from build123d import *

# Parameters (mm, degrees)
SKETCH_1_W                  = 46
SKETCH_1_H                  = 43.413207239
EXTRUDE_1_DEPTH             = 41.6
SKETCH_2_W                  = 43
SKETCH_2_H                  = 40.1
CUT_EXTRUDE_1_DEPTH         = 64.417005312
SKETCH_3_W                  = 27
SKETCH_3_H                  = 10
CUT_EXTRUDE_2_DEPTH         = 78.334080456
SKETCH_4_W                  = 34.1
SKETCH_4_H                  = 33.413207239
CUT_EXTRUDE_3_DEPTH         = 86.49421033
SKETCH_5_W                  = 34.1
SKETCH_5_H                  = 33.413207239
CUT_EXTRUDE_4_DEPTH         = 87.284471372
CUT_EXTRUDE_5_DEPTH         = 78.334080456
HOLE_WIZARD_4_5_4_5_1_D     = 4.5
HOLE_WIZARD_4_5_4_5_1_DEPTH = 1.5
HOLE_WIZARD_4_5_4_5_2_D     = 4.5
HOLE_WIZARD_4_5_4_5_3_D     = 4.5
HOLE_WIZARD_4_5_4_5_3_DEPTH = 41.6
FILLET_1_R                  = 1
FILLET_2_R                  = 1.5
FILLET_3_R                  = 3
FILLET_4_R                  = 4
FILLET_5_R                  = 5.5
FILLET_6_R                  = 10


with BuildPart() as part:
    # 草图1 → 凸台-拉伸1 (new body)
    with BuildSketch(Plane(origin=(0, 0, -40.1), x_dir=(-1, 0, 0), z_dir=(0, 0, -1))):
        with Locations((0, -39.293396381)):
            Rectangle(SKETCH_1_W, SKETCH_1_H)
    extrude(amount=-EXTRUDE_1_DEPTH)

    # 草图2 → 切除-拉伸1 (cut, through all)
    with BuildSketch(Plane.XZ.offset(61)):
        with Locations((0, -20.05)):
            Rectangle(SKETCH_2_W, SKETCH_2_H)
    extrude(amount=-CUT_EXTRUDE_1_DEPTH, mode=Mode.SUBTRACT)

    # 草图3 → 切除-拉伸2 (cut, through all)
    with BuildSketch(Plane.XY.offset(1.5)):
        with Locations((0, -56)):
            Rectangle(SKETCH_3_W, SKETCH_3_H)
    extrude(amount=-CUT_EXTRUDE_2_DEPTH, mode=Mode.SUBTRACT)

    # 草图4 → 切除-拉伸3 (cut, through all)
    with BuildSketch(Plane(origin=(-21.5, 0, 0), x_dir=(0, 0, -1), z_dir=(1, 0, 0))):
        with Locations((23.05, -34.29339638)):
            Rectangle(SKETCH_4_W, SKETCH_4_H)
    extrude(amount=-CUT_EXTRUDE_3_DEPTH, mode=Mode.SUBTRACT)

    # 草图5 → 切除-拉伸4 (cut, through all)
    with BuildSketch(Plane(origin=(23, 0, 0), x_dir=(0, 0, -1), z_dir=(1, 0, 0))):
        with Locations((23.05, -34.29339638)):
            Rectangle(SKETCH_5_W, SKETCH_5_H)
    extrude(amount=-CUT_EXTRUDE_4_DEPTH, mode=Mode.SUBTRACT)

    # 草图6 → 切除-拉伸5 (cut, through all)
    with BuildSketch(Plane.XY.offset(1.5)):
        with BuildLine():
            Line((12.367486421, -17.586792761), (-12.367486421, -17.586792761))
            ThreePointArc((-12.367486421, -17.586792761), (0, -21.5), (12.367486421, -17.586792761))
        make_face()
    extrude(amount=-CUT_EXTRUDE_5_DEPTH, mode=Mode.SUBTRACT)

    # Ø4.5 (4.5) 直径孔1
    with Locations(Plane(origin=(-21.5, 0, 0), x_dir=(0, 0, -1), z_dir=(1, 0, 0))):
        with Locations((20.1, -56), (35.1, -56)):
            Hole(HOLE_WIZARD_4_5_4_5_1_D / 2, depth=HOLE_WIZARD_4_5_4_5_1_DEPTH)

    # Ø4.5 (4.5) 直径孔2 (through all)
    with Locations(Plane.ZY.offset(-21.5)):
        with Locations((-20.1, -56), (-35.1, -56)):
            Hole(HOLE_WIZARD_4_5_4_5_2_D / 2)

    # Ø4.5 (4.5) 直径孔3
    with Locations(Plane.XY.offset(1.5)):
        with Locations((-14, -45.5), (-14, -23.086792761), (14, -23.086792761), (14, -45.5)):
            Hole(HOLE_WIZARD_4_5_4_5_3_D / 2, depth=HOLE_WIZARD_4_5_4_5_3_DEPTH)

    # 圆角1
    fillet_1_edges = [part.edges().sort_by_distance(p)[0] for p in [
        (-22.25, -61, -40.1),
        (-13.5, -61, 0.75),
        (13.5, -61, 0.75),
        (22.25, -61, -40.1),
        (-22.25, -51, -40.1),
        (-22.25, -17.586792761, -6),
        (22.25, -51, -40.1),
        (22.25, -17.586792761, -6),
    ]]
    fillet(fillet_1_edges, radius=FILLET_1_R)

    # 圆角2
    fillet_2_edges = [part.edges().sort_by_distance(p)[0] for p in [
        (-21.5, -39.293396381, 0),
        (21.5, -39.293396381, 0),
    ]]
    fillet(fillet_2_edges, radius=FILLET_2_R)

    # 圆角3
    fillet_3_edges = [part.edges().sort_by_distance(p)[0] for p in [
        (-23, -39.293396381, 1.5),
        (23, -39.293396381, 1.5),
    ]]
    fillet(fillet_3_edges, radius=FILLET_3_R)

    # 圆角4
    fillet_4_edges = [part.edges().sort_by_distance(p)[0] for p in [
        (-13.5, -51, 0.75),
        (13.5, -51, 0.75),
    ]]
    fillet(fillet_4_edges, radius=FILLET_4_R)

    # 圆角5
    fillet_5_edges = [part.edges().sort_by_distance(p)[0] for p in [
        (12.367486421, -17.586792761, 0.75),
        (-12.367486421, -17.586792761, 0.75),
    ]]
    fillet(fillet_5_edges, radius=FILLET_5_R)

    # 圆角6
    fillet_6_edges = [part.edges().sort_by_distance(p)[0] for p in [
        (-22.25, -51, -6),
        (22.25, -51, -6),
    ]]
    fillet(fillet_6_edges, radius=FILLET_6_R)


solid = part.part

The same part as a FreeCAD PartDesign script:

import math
import FreeCAD as App
import Part
import Sketcher


def edges_at(feature, points):
    """Names of the edges that pass closest to the given points."""
    edges = feature.Shape.Edges
    near = lambda p: min(range(len(edges)), key=lambda i: edges[i].distToShape(Part.Vertex(*p))[0])
    return sorted({f"Edge{near(p) + 1}" for p in points})

doc = App.newDocument("Part")
body = doc.addObject("PartDesign::Body", "Body")

sketch1 = body.newObject("Sketcher::SketchObject", "Sketch")
sketch1.AttachmentSupport = (doc.getObject("XY_Plane"), [""])
sketch1.MapMode = "FlatFace"
sketch1.AttachmentOffset = App.Placement(App.Vector(0, 0, -40.1), App.Rotation())
sketch1.addGeometry(Part.LineSegment(App.Vector(23, -17.586793, 0), App.Vector(23, -61, 0)), False)
sketch1.addGeometry(Part.LineSegment(App.Vector(23, -61, 0), App.Vector(-23, -61, 0)), False)
sketch1.addGeometry(Part.LineSegment(App.Vector(-23, -61, 0), App.Vector(-23, -17.586793, 0)), False)
sketch1.addGeometry(Part.LineSegment(App.Vector(-23, -17.586793, 0), App.Vector(23, -17.586793, 0)), False)
sketch1.addConstraint(Sketcher.Constraint("Coincident", 0, 2, 1, 1))
sketch1.addConstraint(Sketcher.Constraint("Coincident", 1, 2, 2, 1))
sketch1.addConstraint(Sketcher.Constraint("Coincident", 2, 2, 3, 1))
sketch1.addConstraint(Sketcher.Constraint("Coincident", 3, 2, 0, 1))
sketch1.addConstraint(Sketcher.Constraint("Vertical", 0))
sketch1.addConstraint(Sketcher.Constraint("Horizontal", 1))
sketch1.addConstraint(Sketcher.Constraint("Vertical", 2))
sketch1.addConstraint(Sketcher.Constraint("Horizontal", 3))
sketch1.addConstraint(Sketcher.Constraint("DistanceX", 1, 2, 1, 1, 46.0))
sketch1.addConstraint(Sketcher.Constraint("DistanceX", -1, 1, 0, 2, 23.0))
sketch1.addConstraint(Sketcher.Constraint("DistanceY", 0, 2, -1, 1, 61.0))
sketch1.addConstraint(Sketcher.Constraint("DistanceY", 0, 2, 0, 1, 43.413207))
pad1 = body.newObject("PartDesign::Pad", "Pad")
pad1.Profile = sketch1
pad1.Length = 41.6

sketch2 = body.newObject("Sketcher::SketchObject", "Sketch001")
sketch2.AttachmentSupport = (doc.getObject("XZ_Plane"), [""])
sketch2.MapMode = "FlatFace"
sketch2.AttachmentOffset = App.Placement(App.Vector(0, 0, 61), App.Rotation())
sketch2.addGeometry(Part.LineSegment(App.Vector(-21.5, 0, 0), App.Vector(-21.5, -40.1, 0)), False)
sketch2.addGeometry(Part.LineSegment(App.Vector(-21.5, -40.1, 0), App.Vector(21.5, -40.1, 0)), False)
sketch2.addGeometry(Part.LineSegment(App.Vector(21.5, -40.1, 0), App.Vector(21.5, 0, 0)), False)
sketch2.addGeometry(Part.LineSegment(App.Vector(21.5, 0, 0), App.Vector(-21.5, 0, 0)), False)
sketch2.addConstraint(Sketcher.Constraint("Coincident", 0, 2, 1, 1))
sketch2.addConstraint(Sketcher.Constraint("Coincident", 1, 2, 2, 1))
sketch2.addConstraint(Sketcher.Constraint("Coincident", 2, 2, 3, 1))
sketch2.addConstraint(Sketcher.Constraint("Coincident", 3, 2, 0, 1))
sketch2.addConstraint(Sketcher.Constraint("Vertical", 0))
sketch2.addConstraint(Sketcher.Constraint("Horizontal", 1))
sketch2.addConstraint(Sketcher.Constraint("Vertical", 2))
sketch2.addConstraint(Sketcher.Constraint("Horizontal", 3))
sketch2.addConstraint(Sketcher.Constraint("Symmetric", 2, 2, 3, 2, -1, 1))
sketch2.addConstraint(Sketcher.Constraint("DistanceX", 1, 1, 1, 2, 43.0))
sketch2.addConstraint(Sketcher.Constraint("DistanceY", 0, 2, 0, 1, 40.1))
pocket1 = body.newObject("PartDesign::Pocket", "Pocket")
pocket1.Profile = sketch2
pocket1.Type = "ThroughAll"

sketch3 = body.newObject("Sketcher::SketchObject", "Sketch002")
sketch3.AttachmentSupport = (doc.getObject("XY_Plane"), [""])
sketch3.MapMode = "FlatFace"
sketch3.AttachmentOffset = App.Placement(App.Vector(0, 0, 1.5), App.Rotation())
sketch3.addGeometry(Part.LineSegment(App.Vector(-13.5, -51, 0), App.Vector(-13.5, -61, 0)), False)
sketch3.addGeometry(Part.LineSegment(App.Vector(-13.5, -61, 0), App.Vector(13.5, -61, 0)), False)
sketch3.addGeometry(Part.LineSegment(App.Vector(13.5, -61, 0), App.Vector(13.5, -51, 0)), False)
sketch3.addGeometry(Part.LineSegment(App.Vector(13.5, -51, 0), App.Vector(-13.5, -51, 0)), False)
sketch3.addConstraint(Sketcher.Constraint("Coincident", 0, 2, 1, 1))
sketch3.addConstraint(Sketcher.Constraint("Coincident", 1, 2, 2, 1))
sketch3.addConstraint(Sketcher.Constraint("Coincident", 2, 2, 3, 1))
sketch3.addConstraint(Sketcher.Constraint("Coincident", 3, 2, 0, 1))
sketch3.addConstraint(Sketcher.Constraint("Vertical", 0))
sketch3.addConstraint(Sketcher.Constraint("Horizontal", 1))
sketch3.addConstraint(Sketcher.Constraint("Vertical", 2))
sketch3.addConstraint(Sketcher.Constraint("Horizontal", 3))
sketch3.addConstraint(Sketcher.Constraint("DistanceX", 1, 1, 1, 2, 27.0))
sketch3.addConstraint(Sketcher.Constraint("DistanceY", 0, 2, 0, 1, 10.0))
sketch3.addConstraint(Sketcher.Constraint("DistanceY", 0, 2, -1, 1, 61.0))
sketch3.addConstraint(Sketcher.Constraint("DistanceX", 0, 2, -1, 1, 13.5))
pocket2 = body.newObject("PartDesign::Pocket", "Pocket001")
pocket2.Profile = sketch3
pocket2.Type = "ThroughAll"

sketch4 = body.newObject("Sketcher::SketchObject", "Sketch003")
sketch4.AttachmentSupport = (doc.getObject("YZ_Plane"), [""])
sketch4.MapMode = "FlatFace"
sketch4.AttachmentOffset = App.Placement(App.Vector(0, 0, -21.5), App.Rotation())
sketch4.addGeometry(Part.LineSegment(App.Vector(-17.586793, -6, 0), App.Vector(-51, -6, 0)), False)
sketch4.addGeometry(Part.LineSegment(App.Vector(-51, -6, 0), App.Vector(-51, -40.1, 0)), False)
sketch4.addGeometry(Part.LineSegment(App.Vector(-51, -40.1, 0), App.Vector(-17.586793, -40.1, 0)), False)
sketch4.addGeometry(Part.LineSegment(App.Vector(-17.586793, -40.1, 0), App.Vector(-17.586793, -6, 0)), False)
sketch4.addConstraint(Sketcher.Constraint("Coincident", 0, 2, 1, 1))
sketch4.addConstraint(Sketcher.Constraint("Coincident", 1, 2, 2, 1))
sketch4.addConstraint(Sketcher.Constraint("Coincident", 2, 2, 3, 1))
sketch4.addConstraint(Sketcher.Constraint("Coincident", 3, 2, 0, 1))
sketch4.addConstraint(Sketcher.Constraint("Horizontal", 0))
sketch4.addConstraint(Sketcher.Constraint("Vertical", 1))
sketch4.addConstraint(Sketcher.Constraint("Horizontal", 2))
sketch4.addConstraint(Sketcher.Constraint("Vertical", 3))
sketch4.addConstraint(Sketcher.Constraint("DistanceY", 1, 2, 1, 1, 34.1))
sketch4.addConstraint(Sketcher.Constraint("DistanceX", 0, 2, -1, 1, 51.0))
sketch4.addConstraint(Sketcher.Constraint("DistanceY", 0, 2, -1, 1, 6.0))
sketch4.addConstraint(Sketcher.Constraint("DistanceX", 0, 2, 0, 1, 33.413207))
pocket3 = body.newObject("PartDesign::Pocket", "Pocket002")
pocket3.Profile = sketch4
pocket3.Type = "ThroughAll"

sketch5 = body.newObject("Sketcher::SketchObject", "Sketch004")
sketch5.AttachmentSupport = (doc.getObject("YZ_Plane"), [""])
sketch5.MapMode = "FlatFace"
sketch5.AttachmentOffset = App.Placement(App.Vector(0, 0, 23), App.Rotation())
sketch5.addGeometry(Part.LineSegment(App.Vector(-17.586793, -6, 0), App.Vector(-51, -6, 0)), False)
sketch5.addGeometry(Part.LineSegment(App.Vector(-51, -6, 0), App.Vector(-51, -40.1, 0)), False)
sketch5.addGeometry(Part.LineSegment(App.Vector(-51, -40.1, 0), App.Vector(-17.586793, -40.1, 0)), False)
sketch5.addGeometry(Part.LineSegment(App.Vector(-17.586793, -40.1, 0), App.Vector(-17.586793, -6, 0)), False)
sketch5.addConstraint(Sketcher.Constraint("Coincident", 0, 2, 1, 1))
sketch5.addConstraint(Sketcher.Constraint("Coincident", 1, 2, 2, 1))
sketch5.addConstraint(Sketcher.Constraint("Coincident", 2, 2, 3, 1))
sketch5.addConstraint(Sketcher.Constraint("Coincident", 3, 2, 0, 1))
sketch5.addConstraint(Sketcher.Constraint("Horizontal", 0))
sketch5.addConstraint(Sketcher.Constraint("Vertical", 1))
sketch5.addConstraint(Sketcher.Constraint("Horizontal", 2))
sketch5.addConstraint(Sketcher.Constraint("Vertical", 3))
sketch5.addConstraint(Sketcher.Constraint("DistanceY", 1, 2, 1, 1, 34.1))
sketch5.addConstraint(Sketcher.Constraint("DistanceX", 0, 2, -1, 1, 51.0))
sketch5.addConstraint(Sketcher.Constraint("DistanceY", 0, 2, -1, 1, 6.0))
sketch5.addConstraint(Sketcher.Constraint("DistanceX", 0, 2, 0, 1, 33.413207))
pocket4 = body.newObject("PartDesign::Pocket", "Pocket003")
pocket4.Profile = sketch5
pocket4.Type = "ThroughAll"

sketch6 = body.newObject("Sketcher::SketchObject", "Sketch005")
sketch6.AttachmentSupport = (doc.getObject("XY_Plane"), [""])
sketch6.MapMode = "FlatFace"
sketch6.AttachmentOffset = App.Placement(App.Vector(0, 0, 1.5), App.Rotation())
sketch6.addGeometry(Part.LineSegment(App.Vector(12.367486, -17.586793, 0), App.Vector(-12.367486, -17.586793, 0)), False)
sketch6.addGeometry(Part.ArcOfCircle(Part.Circle(App.Vector(0, 0, 0), App.Vector(0, 0, 1), 21.5), math.radians(-125.115876), math.radians(-54.884124)), False)
sketch6.addConstraint(Sketcher.Constraint("Coincident", 0, 1, 1, 2))
sketch6.addConstraint(Sketcher.Constraint("Coincident", 1, 1, 0, 2))
sketch6.addConstraint(Sketcher.Constraint("Horizontal", 0))
sketch6.addConstraint(Sketcher.Constraint("Coincident", 1, 3, -1, 1))
sketch6.addConstraint(Sketcher.Constraint("Radius", 1, 21.5))
sketch6.addConstraint(Sketcher.Constraint("DistanceX", 0, 2, 0, 1, 24.734973))
pocket5 = body.newObject("PartDesign::Pocket", "Pocket004")
pocket5.Profile = sketch6
pocket5.Type = "ThroughAll"

sketch7 = body.newObject("Sketcher::SketchObject", "Sketch006")
sketch7.AttachmentSupport = (doc.getObject("YZ_Plane"), [""])
sketch7.MapMode = "FlatFace"
sketch7.AttachmentOffset = App.Placement(App.Vector(0, 0, -21.5), App.Rotation())
sketch7.addGeometry(Part.Circle(App.Vector(-56, -20.1, 0), App.Vector(0, 0, 1), 2.25), False)
sketch7.addGeometry(Part.Circle(App.Vector(-56, -35.1, 0), App.Vector(0, 0, 1), 2.25), False)
sketch7.addConstraint(Sketcher.Constraint("Equal", 0, 1))
sketch7.addConstraint(Sketcher.Constraint("Vertical", 0, 3, 1, 3))
sketch7.addConstraint(Sketcher.Constraint("Diameter", 0, 4.5))
sketch7.addConstraint(Sketcher.Constraint("DistanceX", 0, 3, -1, 1, 56.0))
sketch7.addConstraint(Sketcher.Constraint("DistanceY", 1, 3, 0, 3, 15.0))
sketch7.addConstraint(Sketcher.Constraint("DistanceY", 0, 3, -1, 1, 20.1))
doc.recompute()
hole = body.newObject("PartDesign::Hole", "Hole")
hole.Profile = sketch7
hole.ThreadType = "None"
hole.Diameter = 4.5
hole.DepthType = "Dimension"
hole.Depth = 1.5
hole.DrillPoint = "Flat"

sketch8 = body.newObject("Sketcher::SketchObject", "Sketch007")
sketch8.AttachmentSupport = (doc.getObject("YZ_Plane"), [""])
sketch8.MapMode = "FlatFace"
sketch8.AttachmentOffset = App.Placement(App.Vector(0, 0, 21.5), App.Rotation())
sketch8.addGeometry(Part.Circle(App.Vector(-56, -20.1, 0), App.Vector(0, 0, 1), 2.25), False)
sketch8.addGeometry(Part.Circle(App.Vector(-56, -35.1, 0), App.Vector(0, 0, 1), 2.25), False)
sketch8.addConstraint(Sketcher.Constraint("Equal", 0, 1))
sketch8.addConstraint(Sketcher.Constraint("Vertical", 0, 3, 1, 3))
sketch8.addConstraint(Sketcher.Constraint("Diameter", 0, 4.5))
sketch8.addConstraint(Sketcher.Constraint("DistanceX", 0, 3, -1, 1, 56.0))
sketch8.addConstraint(Sketcher.Constraint("DistanceY", 1, 3, 0, 3, 15.0))
sketch8.addConstraint(Sketcher.Constraint("DistanceY", 0, 3, -1, 1, 20.1))
doc.recompute()
hole2 = body.newObject("PartDesign::Hole", "Hole001")
hole2.Profile = sketch8
hole2.ThreadType = "None"
hole2.Diameter = 4.5
hole2.DepthType = "ThroughAll"
hole2.Reversed = True

sketch9 = body.newObject("Sketcher::SketchObject", "Sketch008")
sketch9.AttachmentSupport = (doc.getObject("XY_Plane"), [""])
sketch9.MapMode = "FlatFace"
sketch9.AttachmentOffset = App.Placement(App.Vector(0, 0, 1.5), App.Rotation())
sketch9.addGeometry(Part.Circle(App.Vector(-14, -45.5, 0), App.Vector(0, 0, 1), 2.25), False)
sketch9.addGeometry(Part.Circle(App.Vector(-14, -23.086793, 0), App.Vector(0, 0, 1), 2.25), False)
sketch9.addGeometry(Part.Circle(App.Vector(14, -23.086793, 0), App.Vector(0, 0, 1), 2.25), False)
sketch9.addGeometry(Part.Circle(App.Vector(14, -45.5, 0), App.Vector(0, 0, 1), 2.25), False)
sketch9.addConstraint(Sketcher.Constraint("Equal", 0, 1))
sketch9.addConstraint(Sketcher.Constraint("Equal", 1, 2))
sketch9.addConstraint(Sketcher.Constraint("Equal", 2, 3))
sketch9.addConstraint(Sketcher.Constraint("Symmetric", 1, 3, 2, 3, -2))
sketch9.addConstraint(Sketcher.Constraint("Symmetric", 0, 3, 3, 3, -2))
sketch9.addConstraint(Sketcher.Constraint("Vertical", 0, 3, 1, 3))
sketch9.addConstraint(Sketcher.Constraint("Diameter", 0, 4.5))
sketch9.addConstraint(Sketcher.Constraint("DistanceX", 0, 3, -1, 1, 14.0))
sketch9.addConstraint(Sketcher.Constraint("DistanceY", 0, 3, -1, 1, 45.5))
sketch9.addConstraint(Sketcher.Constraint("DistanceY", 1, 3, -1, 1, 23.086793))
doc.recompute()
hole3 = body.newObject("PartDesign::Hole", "Hole002")
hole3.Profile = sketch9
hole3.ThreadType = "None"
hole3.Diameter = 4.5
hole3.DepthType = "Dimension"
hole3.Depth = 41.6
hole3.DrillPoint = "Flat"
doc.recompute()

fillet = body.newObject("PartDesign::Fillet", "Fillet")
fillet.Base = (hole3, edges_at(hole3, [
    (-22.25, -61, -40.1),
    (-13.5, -61, 0.75),
    (13.5, -61, 0.75),
    (22.25, -61, -40.1),
    (-22.25, -51, -40.1),
    (-22.25, -17.587, -6),
    (22.25, -51, -40.1),
    (22.25, -17.587, -6),
]))
fillet.Radius = 1
doc.recompute()

fillet2 = body.newObject("PartDesign::Fillet", "Fillet001")
fillet2.Base = (fillet, edges_at(fillet, [(-21.5, -39.293, 0), (21.5, -39.293, 0)]))
fillet2.Radius = 1.5
doc.recompute()

fillet3 = body.newObject("PartDesign::Fillet", "Fillet002")
fillet3.Base = (fillet2, edges_at(fillet2, [(-23, -39.293, 1.5), (23, -39.293, 1.5)]))
fillet3.Radius = 3
doc.recompute()

fillet4 = body.newObject("PartDesign::Fillet", "Fillet003")
fillet4.Base = (fillet3, edges_at(fillet3, [(-13.5, -51, 0.75), (13.5, -51, 0.75)]))
fillet4.Radius = 4
doc.recompute()

fillet5 = body.newObject("PartDesign::Fillet", "Fillet004")
fillet5.Base = (fillet4, edges_at(fillet4, [(12.367, -17.587, 0.75), (-12.367, -17.587, 0.75)]))
fillet5.Radius = 5.5
doc.recompute()

fillet6 = body.newObject("PartDesign::Fillet", "Fillet005")
fillet6.Base = (fillet5, edges_at(fillet5, [(-22.25, -51, -6), (22.25, -51, -6)]))
fillet6.Radius = 10

doc.recompute()
